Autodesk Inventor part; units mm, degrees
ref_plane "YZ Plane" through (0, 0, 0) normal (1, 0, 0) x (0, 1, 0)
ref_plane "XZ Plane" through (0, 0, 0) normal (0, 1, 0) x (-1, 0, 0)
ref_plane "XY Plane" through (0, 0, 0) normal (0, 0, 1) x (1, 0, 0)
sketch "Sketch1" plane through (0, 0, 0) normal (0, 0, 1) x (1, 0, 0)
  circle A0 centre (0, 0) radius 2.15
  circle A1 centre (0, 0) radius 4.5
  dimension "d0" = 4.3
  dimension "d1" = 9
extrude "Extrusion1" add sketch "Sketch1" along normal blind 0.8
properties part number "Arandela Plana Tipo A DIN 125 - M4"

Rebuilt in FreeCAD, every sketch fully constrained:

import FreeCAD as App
import Part
import Sketcher

V = App.Vector

doc = App.newDocument("Part")
params = doc.addObject("Spreadsheet::Sheet", "Params")
for row, (alias, value) in enumerate([
    ("sketch1_diameter", "9 mm"),
    ("sketch1_diameter2", "4.3 mm"),
    ("pad1_length", "0.8 mm"),
], start=1):
    params.set(f"A{row}", alias)
    params.set(f"B{row}", "=" + value)
    params.setAlias(f"B{row}", alias)

body = doc.addObject("PartDesign::Body", "Body")

# Sketch on XY plane
sketch1 = doc.addObject("Sketcher::SketchObject", "Sketch")
body.addObject(sketch1)
sketch1.AttachmentSupport = (doc.XY_Plane, [""])
sketch1.MapMode = "FlatFace"
sketch1.addGeometry([
    Part.Circle(V(0, 0, 0), V(0, 0, 1), 4.5),
    Part.Circle(V(0, 0, 0), V(0, 0, 1), 2.15),
], False)
sketch1.addConstraint([
    Sketcher.Constraint("Coincident", 0, 3, -1, 1),
    Sketcher.Constraint("Coincident", 1, 3, -1, 1),
    Sketcher.Constraint("Diameter", 0, 9.0),
    Sketcher.Constraint("Diameter", 1, 4.3),
])
sketch1.setExpression("Constraints[2]", "Params.sketch1_diameter")
sketch1.setExpression("Constraints[3]", "Params.sketch1_diameter2")
pad1 = doc.addObject("PartDesign::Pad", "Pad")
body.addObject(pad1)
pad1.Profile = sketch1
pad1.setExpression("Length", "Params.pad1_length")

doc.recompute()
